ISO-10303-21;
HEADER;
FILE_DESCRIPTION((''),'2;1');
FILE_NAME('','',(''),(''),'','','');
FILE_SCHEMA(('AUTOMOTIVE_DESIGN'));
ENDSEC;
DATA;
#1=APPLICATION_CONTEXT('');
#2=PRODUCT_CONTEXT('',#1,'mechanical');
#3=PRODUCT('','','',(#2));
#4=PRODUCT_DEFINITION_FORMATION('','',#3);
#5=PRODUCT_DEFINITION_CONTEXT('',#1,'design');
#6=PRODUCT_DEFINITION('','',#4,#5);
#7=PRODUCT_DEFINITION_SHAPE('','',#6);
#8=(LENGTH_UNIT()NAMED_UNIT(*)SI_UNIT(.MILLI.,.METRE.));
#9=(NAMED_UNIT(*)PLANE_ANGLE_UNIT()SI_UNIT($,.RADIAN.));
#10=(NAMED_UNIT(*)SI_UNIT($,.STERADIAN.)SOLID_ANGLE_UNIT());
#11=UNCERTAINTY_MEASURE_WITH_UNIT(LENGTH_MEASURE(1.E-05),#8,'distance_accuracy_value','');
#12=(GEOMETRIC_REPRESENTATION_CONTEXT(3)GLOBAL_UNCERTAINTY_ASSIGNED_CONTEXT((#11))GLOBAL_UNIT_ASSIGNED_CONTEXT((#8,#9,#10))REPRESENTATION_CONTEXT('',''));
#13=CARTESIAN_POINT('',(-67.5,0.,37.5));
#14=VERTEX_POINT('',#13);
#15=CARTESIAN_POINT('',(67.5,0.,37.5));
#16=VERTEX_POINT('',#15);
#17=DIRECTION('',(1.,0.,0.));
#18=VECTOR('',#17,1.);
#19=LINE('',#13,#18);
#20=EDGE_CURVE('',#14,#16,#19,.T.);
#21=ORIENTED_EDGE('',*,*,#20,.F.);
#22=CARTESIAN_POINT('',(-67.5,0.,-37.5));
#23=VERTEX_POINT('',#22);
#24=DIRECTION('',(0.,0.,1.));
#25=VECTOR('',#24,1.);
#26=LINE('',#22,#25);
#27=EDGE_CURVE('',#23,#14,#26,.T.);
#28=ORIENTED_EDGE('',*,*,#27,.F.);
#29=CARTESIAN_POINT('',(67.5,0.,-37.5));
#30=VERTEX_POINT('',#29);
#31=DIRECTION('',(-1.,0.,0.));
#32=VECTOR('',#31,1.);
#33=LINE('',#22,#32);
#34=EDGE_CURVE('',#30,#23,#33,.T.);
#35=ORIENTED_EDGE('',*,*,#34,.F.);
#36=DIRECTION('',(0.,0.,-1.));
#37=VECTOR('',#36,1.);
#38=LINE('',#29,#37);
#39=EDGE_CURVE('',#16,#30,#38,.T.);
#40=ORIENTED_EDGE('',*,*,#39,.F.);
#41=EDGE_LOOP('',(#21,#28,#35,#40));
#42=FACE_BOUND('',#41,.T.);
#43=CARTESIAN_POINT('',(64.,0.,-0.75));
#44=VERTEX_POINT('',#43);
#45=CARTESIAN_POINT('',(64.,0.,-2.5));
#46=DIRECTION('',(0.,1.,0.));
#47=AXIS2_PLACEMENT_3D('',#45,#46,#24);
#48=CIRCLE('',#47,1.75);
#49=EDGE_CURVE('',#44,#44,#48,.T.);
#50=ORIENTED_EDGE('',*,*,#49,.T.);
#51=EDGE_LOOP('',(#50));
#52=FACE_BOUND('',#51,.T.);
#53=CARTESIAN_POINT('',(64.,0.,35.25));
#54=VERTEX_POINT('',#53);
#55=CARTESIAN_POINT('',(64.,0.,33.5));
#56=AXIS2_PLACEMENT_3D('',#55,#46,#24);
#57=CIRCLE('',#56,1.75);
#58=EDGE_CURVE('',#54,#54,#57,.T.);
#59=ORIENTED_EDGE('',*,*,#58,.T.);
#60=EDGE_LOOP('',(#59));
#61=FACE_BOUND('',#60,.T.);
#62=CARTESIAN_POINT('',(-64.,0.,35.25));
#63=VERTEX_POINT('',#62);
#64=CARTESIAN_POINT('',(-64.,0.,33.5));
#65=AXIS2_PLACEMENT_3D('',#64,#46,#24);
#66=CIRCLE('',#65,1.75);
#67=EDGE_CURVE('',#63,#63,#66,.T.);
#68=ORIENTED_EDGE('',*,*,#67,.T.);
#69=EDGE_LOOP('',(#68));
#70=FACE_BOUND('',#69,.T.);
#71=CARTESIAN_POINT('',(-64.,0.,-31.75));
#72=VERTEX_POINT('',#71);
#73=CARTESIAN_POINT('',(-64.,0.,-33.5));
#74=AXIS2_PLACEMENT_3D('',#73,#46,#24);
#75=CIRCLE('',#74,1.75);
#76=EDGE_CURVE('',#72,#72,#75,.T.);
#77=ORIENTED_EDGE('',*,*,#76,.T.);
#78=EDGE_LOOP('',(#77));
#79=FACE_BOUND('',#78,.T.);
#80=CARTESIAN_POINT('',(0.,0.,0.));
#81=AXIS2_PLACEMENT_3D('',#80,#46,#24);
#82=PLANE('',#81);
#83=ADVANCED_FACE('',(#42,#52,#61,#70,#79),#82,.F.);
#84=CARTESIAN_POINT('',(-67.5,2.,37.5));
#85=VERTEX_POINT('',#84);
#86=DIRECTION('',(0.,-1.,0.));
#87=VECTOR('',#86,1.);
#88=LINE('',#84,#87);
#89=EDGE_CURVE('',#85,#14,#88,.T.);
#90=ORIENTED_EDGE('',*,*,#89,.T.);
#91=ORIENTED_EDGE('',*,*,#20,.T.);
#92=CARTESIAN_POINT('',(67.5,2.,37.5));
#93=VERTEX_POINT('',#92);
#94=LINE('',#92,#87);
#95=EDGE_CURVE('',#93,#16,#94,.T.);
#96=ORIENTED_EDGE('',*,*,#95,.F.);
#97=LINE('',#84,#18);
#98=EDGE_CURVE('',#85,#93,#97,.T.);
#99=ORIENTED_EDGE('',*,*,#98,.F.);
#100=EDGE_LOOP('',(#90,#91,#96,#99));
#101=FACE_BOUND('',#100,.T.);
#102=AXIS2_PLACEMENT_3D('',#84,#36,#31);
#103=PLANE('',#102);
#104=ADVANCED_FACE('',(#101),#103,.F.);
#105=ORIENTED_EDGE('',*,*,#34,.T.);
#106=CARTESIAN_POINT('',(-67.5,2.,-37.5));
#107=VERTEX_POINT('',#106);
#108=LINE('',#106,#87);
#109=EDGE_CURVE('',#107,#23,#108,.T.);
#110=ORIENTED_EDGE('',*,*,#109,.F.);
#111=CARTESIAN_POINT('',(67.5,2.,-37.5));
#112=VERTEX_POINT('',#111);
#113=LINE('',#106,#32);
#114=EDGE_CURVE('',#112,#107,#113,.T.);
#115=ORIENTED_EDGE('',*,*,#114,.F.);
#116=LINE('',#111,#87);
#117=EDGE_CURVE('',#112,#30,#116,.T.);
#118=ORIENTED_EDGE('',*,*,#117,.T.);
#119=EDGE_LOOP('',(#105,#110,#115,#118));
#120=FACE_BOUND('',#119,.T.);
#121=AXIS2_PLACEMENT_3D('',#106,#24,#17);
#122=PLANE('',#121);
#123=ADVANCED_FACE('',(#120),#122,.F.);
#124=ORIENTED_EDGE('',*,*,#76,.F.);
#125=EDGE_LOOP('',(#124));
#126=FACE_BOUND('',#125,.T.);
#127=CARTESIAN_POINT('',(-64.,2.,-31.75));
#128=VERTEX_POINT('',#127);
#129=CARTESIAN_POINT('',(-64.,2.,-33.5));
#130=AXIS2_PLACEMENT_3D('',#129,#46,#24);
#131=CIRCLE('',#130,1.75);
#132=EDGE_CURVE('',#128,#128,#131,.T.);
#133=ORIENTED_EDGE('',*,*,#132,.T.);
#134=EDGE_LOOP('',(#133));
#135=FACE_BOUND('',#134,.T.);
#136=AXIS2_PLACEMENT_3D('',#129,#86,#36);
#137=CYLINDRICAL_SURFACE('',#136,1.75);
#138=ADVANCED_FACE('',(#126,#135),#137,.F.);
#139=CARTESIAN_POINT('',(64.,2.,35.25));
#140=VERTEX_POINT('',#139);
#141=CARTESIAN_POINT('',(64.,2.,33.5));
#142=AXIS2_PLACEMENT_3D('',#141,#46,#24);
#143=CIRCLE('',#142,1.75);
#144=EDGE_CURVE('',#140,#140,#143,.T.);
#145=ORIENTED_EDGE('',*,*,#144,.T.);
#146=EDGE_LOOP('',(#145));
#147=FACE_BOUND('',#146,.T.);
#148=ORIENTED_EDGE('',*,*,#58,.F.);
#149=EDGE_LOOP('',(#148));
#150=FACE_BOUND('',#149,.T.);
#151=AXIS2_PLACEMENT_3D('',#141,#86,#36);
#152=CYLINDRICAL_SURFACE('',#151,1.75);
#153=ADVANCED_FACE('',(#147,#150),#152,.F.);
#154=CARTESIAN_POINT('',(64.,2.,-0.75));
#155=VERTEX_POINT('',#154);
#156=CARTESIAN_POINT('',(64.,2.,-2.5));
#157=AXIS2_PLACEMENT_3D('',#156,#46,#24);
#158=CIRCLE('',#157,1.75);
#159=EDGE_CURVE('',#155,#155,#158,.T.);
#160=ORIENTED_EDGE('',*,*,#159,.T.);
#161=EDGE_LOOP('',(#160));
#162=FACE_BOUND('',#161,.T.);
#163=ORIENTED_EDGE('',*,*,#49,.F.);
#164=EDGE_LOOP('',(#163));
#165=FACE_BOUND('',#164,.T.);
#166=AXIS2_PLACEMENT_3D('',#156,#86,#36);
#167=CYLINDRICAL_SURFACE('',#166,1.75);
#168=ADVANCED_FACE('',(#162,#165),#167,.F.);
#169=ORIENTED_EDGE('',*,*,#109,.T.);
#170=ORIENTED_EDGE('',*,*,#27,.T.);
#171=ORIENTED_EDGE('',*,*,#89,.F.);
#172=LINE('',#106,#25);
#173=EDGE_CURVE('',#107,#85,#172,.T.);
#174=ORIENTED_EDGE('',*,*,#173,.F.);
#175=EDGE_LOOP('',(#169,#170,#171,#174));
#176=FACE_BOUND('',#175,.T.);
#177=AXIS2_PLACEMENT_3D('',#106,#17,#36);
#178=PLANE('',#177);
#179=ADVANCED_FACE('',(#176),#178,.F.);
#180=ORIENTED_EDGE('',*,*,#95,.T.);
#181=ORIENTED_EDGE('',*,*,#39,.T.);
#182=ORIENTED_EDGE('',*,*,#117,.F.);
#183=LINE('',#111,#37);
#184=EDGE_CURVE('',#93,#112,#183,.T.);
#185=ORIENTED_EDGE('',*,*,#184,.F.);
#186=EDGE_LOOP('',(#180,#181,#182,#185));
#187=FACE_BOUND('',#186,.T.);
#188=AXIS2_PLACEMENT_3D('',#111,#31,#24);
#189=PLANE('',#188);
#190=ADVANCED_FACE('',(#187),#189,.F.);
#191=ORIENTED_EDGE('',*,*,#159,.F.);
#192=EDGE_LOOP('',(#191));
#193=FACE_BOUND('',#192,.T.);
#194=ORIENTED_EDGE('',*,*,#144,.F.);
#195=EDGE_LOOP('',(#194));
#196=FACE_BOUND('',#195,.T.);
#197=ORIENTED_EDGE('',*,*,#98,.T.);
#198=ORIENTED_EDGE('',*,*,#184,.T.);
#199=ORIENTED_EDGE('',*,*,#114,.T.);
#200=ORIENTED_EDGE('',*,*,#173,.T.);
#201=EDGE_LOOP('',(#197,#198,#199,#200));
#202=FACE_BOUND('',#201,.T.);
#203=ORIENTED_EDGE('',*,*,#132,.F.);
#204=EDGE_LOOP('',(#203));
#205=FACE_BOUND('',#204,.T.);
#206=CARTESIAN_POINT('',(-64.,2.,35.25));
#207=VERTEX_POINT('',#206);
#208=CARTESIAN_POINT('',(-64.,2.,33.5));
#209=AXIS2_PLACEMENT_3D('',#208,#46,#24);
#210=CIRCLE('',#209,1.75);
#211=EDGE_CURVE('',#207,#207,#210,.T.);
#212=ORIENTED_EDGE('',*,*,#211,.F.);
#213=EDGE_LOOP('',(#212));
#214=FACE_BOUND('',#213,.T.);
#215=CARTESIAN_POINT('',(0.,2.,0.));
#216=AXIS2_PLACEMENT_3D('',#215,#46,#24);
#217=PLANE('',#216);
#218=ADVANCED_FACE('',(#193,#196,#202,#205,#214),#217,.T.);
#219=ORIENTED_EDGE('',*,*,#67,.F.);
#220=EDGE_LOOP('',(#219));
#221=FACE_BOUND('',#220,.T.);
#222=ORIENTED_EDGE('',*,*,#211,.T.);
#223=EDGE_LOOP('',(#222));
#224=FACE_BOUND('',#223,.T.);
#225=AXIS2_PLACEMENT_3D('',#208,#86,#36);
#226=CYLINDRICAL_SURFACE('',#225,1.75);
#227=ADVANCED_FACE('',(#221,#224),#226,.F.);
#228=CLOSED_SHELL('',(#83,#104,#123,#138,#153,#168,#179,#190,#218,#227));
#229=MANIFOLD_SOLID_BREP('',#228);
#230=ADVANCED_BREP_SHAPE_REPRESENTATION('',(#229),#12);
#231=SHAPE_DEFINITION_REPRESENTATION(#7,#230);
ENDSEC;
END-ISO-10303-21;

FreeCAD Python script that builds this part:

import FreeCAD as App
import Part
import Sketcher


def add_polygon(sketch, points):
    """Adds a closed chain of lines whose ends are joined by coincident constraints."""
    first, n = sketch.GeometryCount, len(points)
    for a, b in zip(points, points[1:] + points[:1]):
        sketch.addGeometry(Part.LineSegment(App.Vector(*a, 0), App.Vector(*b, 0)), False)
    for i in range(n):
        sketch.addConstraint(Sketcher.Constraint("Coincident", first + i, 2, first + (i + 1) % n, 1))

doc = App.newDocument("Part")
body = doc.addObject("PartDesign::Body", "Body")

# Sketch on XZ plane
sketch1 = body.newObject("Sketcher::SketchObject", "Sketch")
sketch1.AttachmentSupport = (doc.getObject("XZ_Plane"), [""])
sketch1.MapMode = "FlatFace"
add_polygon(sketch1, [(-67.5, -37.5), (-67.5, 37.5), (67.5, 37.5), (67.5, -37.5)])  # lines 0-3
sketch1.addGeometry(Part.Circle(App.Vector(-64, 33.5, 0), App.Vector(0, 0, 1), 1.75), False)  # 4
sketch1.addGeometry(Part.Circle(App.Vector(64, 33.5, 0), App.Vector(0, 0, 1), 1.75), False)  # 5
sketch1.addGeometry(Part.Circle(App.Vector(-64, -33.5, 0), App.Vector(0, 0, 1), 1.75), False)  # 6
sketch1.addGeometry(Part.Circle(App.Vector(64, -2.5, 0), App.Vector(0, 0, 1), 1.75), False)  # 7
sketch1.addConstraint([
    Sketcher.Constraint("Vertical", 0),
    Sketcher.Constraint("Horizontal", 1),
    Sketcher.Constraint("Vertical", 2),
    Sketcher.Constraint("Horizontal", 3),
    Sketcher.Constraint("Equal", 4, 5),
    Sketcher.Constraint("Equal", 5, 6),
    Sketcher.Constraint("Equal", 6, 7),
    Sketcher.Constraint("Symmetric", 5, 3, 6, 3, -1, 1),
    Sketcher.Constraint("Symmetric", 0, 2, 2, 2, -1, 1),
    Sketcher.Constraint("Symmetric", 4, 3, 5, 3, -2),
    Sketcher.Constraint("Vertical", 5, 3, 7, 3),
    Sketcher.Constraint("Diameter", 4, 3.5),
    Sketcher.Constraint("DistanceX", 1, 1, 1, 2, 135.0),
    Sketcher.Constraint("DistanceY", 0, 1, 0, 2, 75.0),
    Sketcher.Constraint("DistanceX", 4, 3, -1, 1, 64.0),
    Sketcher.Constraint("DistanceY", 6, 3, 4, 3, 67.0),
    Sketcher.Constraint("DistanceY", 7, 3, 5, 3, 36.0),
])
pad1 = body.newObject("PartDesign::Pad", "Pad")
pad1.Profile = sketch1
pad1.Length = 2
pad1.Reversed = True

doc.recompute()
